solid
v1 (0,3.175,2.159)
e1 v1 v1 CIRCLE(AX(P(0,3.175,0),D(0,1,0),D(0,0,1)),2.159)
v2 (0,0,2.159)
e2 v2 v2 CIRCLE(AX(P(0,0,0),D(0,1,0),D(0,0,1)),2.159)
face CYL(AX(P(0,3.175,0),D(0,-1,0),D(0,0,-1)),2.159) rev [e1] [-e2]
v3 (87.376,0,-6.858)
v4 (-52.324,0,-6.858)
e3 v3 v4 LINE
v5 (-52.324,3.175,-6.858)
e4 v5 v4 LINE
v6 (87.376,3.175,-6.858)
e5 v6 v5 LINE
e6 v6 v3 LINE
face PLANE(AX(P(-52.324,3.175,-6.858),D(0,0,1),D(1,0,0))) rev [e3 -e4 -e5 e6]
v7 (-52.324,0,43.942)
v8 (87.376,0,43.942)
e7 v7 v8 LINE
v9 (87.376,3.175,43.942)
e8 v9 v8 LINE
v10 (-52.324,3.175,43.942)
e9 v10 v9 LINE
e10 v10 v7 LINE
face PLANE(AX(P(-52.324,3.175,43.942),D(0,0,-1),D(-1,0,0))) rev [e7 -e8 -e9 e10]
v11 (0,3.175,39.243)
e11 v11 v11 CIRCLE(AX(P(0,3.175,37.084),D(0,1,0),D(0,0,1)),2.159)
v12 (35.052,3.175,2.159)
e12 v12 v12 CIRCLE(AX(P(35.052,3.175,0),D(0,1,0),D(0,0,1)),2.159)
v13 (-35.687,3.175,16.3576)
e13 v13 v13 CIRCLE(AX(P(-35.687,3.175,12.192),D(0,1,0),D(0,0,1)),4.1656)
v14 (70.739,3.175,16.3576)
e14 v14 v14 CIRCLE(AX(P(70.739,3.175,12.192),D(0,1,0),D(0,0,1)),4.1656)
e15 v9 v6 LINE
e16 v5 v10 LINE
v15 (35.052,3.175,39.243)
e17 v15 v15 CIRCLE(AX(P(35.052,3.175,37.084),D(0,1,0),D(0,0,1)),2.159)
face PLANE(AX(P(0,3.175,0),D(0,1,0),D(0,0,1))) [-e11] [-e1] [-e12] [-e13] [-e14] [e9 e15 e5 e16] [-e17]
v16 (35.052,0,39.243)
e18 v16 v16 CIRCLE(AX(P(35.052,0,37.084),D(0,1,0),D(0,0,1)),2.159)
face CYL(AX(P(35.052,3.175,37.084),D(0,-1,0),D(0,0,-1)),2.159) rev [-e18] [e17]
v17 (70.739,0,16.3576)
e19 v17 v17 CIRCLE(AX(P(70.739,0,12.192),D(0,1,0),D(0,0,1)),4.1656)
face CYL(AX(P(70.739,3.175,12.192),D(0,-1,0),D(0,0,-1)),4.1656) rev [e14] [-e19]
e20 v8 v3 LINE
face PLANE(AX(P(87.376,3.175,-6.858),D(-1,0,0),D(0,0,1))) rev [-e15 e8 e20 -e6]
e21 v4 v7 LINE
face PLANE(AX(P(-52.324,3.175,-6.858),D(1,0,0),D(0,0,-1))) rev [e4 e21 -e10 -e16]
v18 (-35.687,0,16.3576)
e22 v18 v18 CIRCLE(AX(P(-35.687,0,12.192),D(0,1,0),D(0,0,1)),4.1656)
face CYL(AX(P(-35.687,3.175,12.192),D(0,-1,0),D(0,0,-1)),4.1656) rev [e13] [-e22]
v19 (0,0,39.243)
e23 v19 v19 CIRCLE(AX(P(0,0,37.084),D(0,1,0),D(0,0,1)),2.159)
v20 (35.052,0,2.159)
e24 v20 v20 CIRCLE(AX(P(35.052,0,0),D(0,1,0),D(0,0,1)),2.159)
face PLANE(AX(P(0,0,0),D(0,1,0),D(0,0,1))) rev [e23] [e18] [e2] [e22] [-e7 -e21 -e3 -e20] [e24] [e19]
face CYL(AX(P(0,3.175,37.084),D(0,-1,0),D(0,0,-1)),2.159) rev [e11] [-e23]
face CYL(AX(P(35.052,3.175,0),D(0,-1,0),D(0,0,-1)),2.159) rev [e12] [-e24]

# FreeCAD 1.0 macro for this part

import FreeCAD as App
import Part
import Sketcher
Q = App.Units.Quantity

doc = App.newDocument("Part")
params = doc.addObject("Spreadsheet::Sheet", "Params")
for row, (alias, value) in enumerate([
    ("sketch1_diameter", "0.17 in"),
    ("sketch1_height", "2 in"),
    ("sketch1_diameter2", "0.328 in"),
    ("sketch1_width", "5.5 in"),
    ("pad1_length", "0.125 in"),
], start=1):
    params.set(f"A{row}", alias)
    params.set(f"B{row}", "=" + value)
    params.setAlias(f"B{row}", alias)

body = doc.addObject("PartDesign::Body", "Body")

# Sketch on XZ plane
sketch1 = doc.addObject("Sketcher::SketchObject", "Sketch")
body.addObject(sketch1)
sketch1.AttachmentSupport = (doc.XZ_Plane, [""])
sketch1.MapMode = "FlatFace"
sketch1.addGeometry(Part.LineSegment(App.Vector(-52.3, -6.9, 0), App.Vector(-52.3, 43.9, 0)), False)
sketch1.addGeometry(Part.LineSegment(App.Vector(-52.3, 43.9, 0), App.Vector(87.4, 43.9, 0)), False)
sketch1.addGeometry(Part.LineSegment(App.Vector(87.4, 43.9, 0), App.Vector(87.4, -6.9, 0)), False)
sketch1.addGeometry(Part.LineSegment(App.Vector(87.4, -6.9, 0), App.Vector(-52.3, -6.9, 0)), False)
sketch1.addGeometry(Part.Circle(App.Vector(0, 37.1, 0), App.Vector(0, 0, 1), 2.2), False)
sketch1.addGeometry(Part.Circle(App.Vector(35.1, 37.1, 0), App.Vector(0, 0, 1), 2.2), False)
sketch1.addGeometry(Part.Circle(App.Vector(-35.7, 12.2, 0), App.Vector(0, 0, 1), 4.2), False)
sketch1.addGeometry(Part.Circle(App.Vector(0, 0, 0), App.Vector(0, 0, 1), 2.2), False)
sketch1.addGeometry(Part.Circle(App.Vector(70.7, 12.2, 0), App.Vector(0, 0, 1), 4.2), False)
sketch1.addGeometry(Part.Circle(App.Vector(35.1, 0, 0), App.Vector(0, 0, 1), 2.2), False)
sketch1.addConstraint(Sketcher.Constraint("Coincident", 0, 2, 1, 1))
sketch1.addConstraint(Sketcher.Constraint("Coincident", 1, 2, 2, 1))
sketch1.addConstraint(Sketcher.Constraint("Coincident", 2, 2, 3, 1))
sketch1.addConstraint(Sketcher.Constraint("Coincident", 3, 2, 0, 1))
sketch1.addConstraint(Sketcher.Constraint("Vertical", 0))
sketch1.addConstraint(Sketcher.Constraint("Horizontal", 1))
sketch1.addConstraint(Sketcher.Constraint("Vertical", 2))
sketch1.addConstraint(Sketcher.Constraint("Horizontal", 3))
sketch1.addConstraint(Sketcher.Constraint("Coincident", 7, 3, -1, 1))
sketch1.addConstraint(Sketcher.Constraint("Equal", 4, 5))
sketch1.addConstraint(Sketcher.Constraint("Equal", 5, 7))
sketch1.addConstraint(Sketcher.Constraint("Equal", 6, 8))
sketch1.addConstraint(Sketcher.Constraint("Equal", 7, 9))
sketch1.addConstraint(Sketcher.Constraint("PointOnObject", 4, 3, -2))
sketch1.addConstraint(Sketcher.Constraint("PointOnObject", 9, 3, -1))
sketch1.addConstraint(Sketcher.Constraint("Horizontal", 4, 3, 5, 3))
sketch1.addConstraint(Sketcher.Constraint("Horizontal", 6, 3, 8, 3))
sketch1.addConstraint(Sketcher.Constraint("Vertical", 5, 3, 9, 3))
sketch1.addConstraint(Sketcher.Constraint("Diameter", 4, Q("0.17 in")))
sketch1.addConstraint(Sketcher.Constraint("DistanceY", 0, 1, 0, 2, Q("2 in")))
sketch1.addConstraint(Sketcher.Constraint("Diameter", 6, Q("0.328 in")))
sketch1.addConstraint(Sketcher.Constraint("DistanceX", 1, 1, 1, 2, Q("5.5 in")))
sketch1.addConstraint(Sketcher.Constraint("DistanceY", -1, 1, 4, 3, Q("1.46 in")))
sketch1.addConstraint(Sketcher.Constraint("DistanceX", -1, 1, 5, 3, Q("1.38 in")))
sketch1.addConstraint(Sketcher.Constraint("DistanceY", -1, 1, 6, 3, Q("0.48 in")))
sketch1.addConstraint(Sketcher.Constraint("DistanceX", 0, 2, -1, 1, Q("2.06 in")))
sketch1.addConstraint(Sketcher.Constraint("DistanceY", -1, 1, 0, 2, Q("1.73 in")))
sketch1.addConstraint(Sketcher.Constraint("DistanceX", 6, 3, 8, 3, Q("4.19 in")))
sketch1.addConstraint(Sketcher.Constraint("DistanceX", 6, 3, -1, 1, Q("1.405 in")))
sketch1.setExpression("Constraints[18]", "Params.sketch1_diameter")
sketch1.setExpression("Constraints[19]", "Params.sketch1_height")
sketch1.setExpression("Constraints[20]", "Params.sketch1_diameter2")
sketch1.setExpression("Constraints[21]", "Params.sketch1_width")
pad1 = doc.addObject("PartDesign::Pad", "Pad")
body.addObject(pad1)
pad1.Profile = sketch1
pad1.setExpression("Length", "Params.pad1_length")
pad1.Reversed = True

doc.recompute()
